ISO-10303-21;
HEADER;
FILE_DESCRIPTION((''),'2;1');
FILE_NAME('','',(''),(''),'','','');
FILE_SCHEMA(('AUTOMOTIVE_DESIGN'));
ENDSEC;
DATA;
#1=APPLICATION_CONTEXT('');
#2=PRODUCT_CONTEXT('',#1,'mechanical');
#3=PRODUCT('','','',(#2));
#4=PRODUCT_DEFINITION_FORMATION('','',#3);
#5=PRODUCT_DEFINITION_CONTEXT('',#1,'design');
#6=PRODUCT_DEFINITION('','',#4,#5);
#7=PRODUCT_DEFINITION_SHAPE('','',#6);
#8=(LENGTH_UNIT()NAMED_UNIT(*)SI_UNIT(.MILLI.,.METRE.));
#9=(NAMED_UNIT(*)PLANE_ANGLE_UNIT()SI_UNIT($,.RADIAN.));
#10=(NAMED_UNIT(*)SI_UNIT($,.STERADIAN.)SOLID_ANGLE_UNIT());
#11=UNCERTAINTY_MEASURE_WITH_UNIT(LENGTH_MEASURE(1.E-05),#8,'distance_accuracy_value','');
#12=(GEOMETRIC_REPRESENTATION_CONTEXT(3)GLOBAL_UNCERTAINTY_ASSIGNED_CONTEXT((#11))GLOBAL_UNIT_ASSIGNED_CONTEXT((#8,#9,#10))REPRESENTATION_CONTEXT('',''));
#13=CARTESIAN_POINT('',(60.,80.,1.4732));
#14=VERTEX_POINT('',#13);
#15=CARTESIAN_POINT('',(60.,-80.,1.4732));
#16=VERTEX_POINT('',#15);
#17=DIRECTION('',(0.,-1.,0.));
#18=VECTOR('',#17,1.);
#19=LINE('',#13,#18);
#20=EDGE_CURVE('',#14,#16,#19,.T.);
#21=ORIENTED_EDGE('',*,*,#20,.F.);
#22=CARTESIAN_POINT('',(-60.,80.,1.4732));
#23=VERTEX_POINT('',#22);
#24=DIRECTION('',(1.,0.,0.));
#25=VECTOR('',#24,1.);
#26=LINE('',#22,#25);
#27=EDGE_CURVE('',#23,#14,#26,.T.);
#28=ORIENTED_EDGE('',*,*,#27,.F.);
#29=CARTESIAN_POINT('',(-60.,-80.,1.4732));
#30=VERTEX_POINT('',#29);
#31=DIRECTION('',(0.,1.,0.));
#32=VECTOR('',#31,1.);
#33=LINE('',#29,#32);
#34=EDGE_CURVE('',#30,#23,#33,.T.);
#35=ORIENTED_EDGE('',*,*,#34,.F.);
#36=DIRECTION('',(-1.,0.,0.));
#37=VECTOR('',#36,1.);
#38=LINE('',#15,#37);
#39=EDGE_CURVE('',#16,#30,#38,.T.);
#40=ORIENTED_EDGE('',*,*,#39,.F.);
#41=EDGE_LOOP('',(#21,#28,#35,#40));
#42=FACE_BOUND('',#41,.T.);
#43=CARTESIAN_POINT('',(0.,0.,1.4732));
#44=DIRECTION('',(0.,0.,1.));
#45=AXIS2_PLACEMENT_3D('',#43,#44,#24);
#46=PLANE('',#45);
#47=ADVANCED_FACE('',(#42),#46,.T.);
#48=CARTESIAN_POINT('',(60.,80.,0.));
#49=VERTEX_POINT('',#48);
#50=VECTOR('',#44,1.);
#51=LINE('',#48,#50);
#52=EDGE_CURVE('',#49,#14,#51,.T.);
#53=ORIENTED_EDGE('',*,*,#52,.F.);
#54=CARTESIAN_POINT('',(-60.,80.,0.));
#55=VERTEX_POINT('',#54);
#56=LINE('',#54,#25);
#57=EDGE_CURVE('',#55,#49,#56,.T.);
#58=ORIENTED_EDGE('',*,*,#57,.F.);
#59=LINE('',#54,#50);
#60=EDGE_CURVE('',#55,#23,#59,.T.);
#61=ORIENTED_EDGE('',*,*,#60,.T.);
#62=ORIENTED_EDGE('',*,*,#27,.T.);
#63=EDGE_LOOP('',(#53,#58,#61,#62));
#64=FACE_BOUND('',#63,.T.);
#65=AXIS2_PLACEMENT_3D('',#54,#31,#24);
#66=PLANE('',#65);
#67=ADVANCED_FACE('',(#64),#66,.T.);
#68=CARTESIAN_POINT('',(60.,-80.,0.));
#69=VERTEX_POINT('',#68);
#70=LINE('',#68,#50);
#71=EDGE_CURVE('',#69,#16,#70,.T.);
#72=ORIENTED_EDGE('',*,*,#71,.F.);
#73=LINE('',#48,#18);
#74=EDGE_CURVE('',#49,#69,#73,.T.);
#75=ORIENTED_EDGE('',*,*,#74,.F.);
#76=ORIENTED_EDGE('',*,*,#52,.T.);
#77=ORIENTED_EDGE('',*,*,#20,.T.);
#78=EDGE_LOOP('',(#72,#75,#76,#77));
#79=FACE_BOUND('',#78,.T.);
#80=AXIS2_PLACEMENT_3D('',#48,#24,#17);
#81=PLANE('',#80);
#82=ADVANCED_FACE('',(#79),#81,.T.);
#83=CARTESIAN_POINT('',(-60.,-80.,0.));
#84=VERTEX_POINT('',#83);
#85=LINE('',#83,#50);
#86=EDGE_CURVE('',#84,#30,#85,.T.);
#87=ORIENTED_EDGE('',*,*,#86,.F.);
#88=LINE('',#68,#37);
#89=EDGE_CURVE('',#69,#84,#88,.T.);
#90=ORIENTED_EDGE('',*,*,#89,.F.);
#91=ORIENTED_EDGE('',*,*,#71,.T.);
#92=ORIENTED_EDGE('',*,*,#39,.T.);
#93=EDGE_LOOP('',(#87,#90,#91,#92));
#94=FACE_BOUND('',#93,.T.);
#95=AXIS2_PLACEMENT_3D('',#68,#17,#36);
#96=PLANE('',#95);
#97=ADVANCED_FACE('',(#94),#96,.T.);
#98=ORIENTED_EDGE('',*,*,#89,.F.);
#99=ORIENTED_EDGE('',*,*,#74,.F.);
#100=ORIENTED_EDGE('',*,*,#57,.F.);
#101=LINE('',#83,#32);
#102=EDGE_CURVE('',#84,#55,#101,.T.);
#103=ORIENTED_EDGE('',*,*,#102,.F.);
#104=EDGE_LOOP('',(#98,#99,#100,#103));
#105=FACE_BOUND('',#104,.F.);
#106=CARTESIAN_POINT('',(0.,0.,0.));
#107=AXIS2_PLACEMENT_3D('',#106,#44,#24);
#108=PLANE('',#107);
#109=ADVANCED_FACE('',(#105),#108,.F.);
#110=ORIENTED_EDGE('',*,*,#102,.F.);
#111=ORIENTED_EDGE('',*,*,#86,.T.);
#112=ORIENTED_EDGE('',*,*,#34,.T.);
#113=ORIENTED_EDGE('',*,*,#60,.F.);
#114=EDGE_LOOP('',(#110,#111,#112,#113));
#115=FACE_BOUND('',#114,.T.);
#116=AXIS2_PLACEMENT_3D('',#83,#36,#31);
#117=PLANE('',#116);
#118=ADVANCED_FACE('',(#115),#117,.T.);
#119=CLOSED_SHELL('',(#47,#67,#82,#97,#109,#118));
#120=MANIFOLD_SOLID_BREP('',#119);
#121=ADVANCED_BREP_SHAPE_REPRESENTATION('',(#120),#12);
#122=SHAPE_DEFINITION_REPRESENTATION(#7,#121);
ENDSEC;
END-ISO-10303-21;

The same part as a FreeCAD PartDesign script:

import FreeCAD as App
import Part
import Sketcher

doc = App.newDocument("Part")
params = doc.addObject("Spreadsheet::Sheet", "Params")
for row, (alias, value) in enumerate([
    ("sketch1_width", "120 mm"),
    ("sketch1_height", "160 mm"),
    ("pad1_length", "1.4732 mm"),
], start=1):
    params.set(f"A{row}", alias)
    params.set(f"B{row}", "=" + value)
    params.setAlias(f"B{row}", alias)

body = doc.addObject("PartDesign::Body", "Body")

# Sketch on XY plane
sketch1 = body.newObject("Sketcher::SketchObject", "Sketch")
sketch1.AttachmentSupport = (doc.getObject("XY_Plane"), [""])
sketch1.MapMode = "FlatFace"
sketch1.addGeometry(Part.LineSegment(App.Vector(60, 80, 0), App.Vector(-60, 80, 0)), False)
sketch1.addGeometry(Part.LineSegment(App.Vector(-60, 80, 0), App.Vector(-60, -80, 0)), False)
sketch1.addGeometry(Part.LineSegment(App.Vector(-60, -80, 0), App.Vector(60, -80, 0)), False)
sketch1.addGeometry(Part.LineSegment(App.Vector(60, -80, 0), App.Vector(60, 80, 0)), False)
sketch1.addConstraint(Sketcher.Constraint("Coincident", 0, 2, 1, 1))
sketch1.addConstraint(Sketcher.Constraint("Coincident", 1, 2, 2, 1))
sketch1.addConstraint(Sketcher.Constraint("Coincident", 2, 2, 3, 1))
sketch1.addConstraint(Sketcher.Constraint("Coincident", 3, 2, 0, 1))
sketch1.addConstraint(Sketcher.Constraint("Horizontal", 0))
sketch1.addConstraint(Sketcher.Constraint("Vertical", 1))
sketch1.addConstraint(Sketcher.Constraint("Horizontal", 2))
sketch1.addConstraint(Sketcher.Constraint("Vertical", 3))
sketch1.addConstraint(Sketcher.Constraint("Symmetric", 0, 2, 2, 2, -1, 1))
sketch1.addConstraint(Sketcher.Constraint("DistanceX", 0, 2, 0, 1, 120.0))
sketch1.addConstraint(Sketcher.Constraint("DistanceY", 1, 2, 1, 1, 160.0))
sketch1.setExpression("Constraints[9]", "Params.sketch1_width")
sketch1.setExpression("Constraints[10]", "Params.sketch1_height")
pad1 = body.newObject("PartDesign::Pad", "Pad")
pad1.Profile = sketch1
pad1.setExpression("Length", "Params.pad1_length")

doc.recompute()
